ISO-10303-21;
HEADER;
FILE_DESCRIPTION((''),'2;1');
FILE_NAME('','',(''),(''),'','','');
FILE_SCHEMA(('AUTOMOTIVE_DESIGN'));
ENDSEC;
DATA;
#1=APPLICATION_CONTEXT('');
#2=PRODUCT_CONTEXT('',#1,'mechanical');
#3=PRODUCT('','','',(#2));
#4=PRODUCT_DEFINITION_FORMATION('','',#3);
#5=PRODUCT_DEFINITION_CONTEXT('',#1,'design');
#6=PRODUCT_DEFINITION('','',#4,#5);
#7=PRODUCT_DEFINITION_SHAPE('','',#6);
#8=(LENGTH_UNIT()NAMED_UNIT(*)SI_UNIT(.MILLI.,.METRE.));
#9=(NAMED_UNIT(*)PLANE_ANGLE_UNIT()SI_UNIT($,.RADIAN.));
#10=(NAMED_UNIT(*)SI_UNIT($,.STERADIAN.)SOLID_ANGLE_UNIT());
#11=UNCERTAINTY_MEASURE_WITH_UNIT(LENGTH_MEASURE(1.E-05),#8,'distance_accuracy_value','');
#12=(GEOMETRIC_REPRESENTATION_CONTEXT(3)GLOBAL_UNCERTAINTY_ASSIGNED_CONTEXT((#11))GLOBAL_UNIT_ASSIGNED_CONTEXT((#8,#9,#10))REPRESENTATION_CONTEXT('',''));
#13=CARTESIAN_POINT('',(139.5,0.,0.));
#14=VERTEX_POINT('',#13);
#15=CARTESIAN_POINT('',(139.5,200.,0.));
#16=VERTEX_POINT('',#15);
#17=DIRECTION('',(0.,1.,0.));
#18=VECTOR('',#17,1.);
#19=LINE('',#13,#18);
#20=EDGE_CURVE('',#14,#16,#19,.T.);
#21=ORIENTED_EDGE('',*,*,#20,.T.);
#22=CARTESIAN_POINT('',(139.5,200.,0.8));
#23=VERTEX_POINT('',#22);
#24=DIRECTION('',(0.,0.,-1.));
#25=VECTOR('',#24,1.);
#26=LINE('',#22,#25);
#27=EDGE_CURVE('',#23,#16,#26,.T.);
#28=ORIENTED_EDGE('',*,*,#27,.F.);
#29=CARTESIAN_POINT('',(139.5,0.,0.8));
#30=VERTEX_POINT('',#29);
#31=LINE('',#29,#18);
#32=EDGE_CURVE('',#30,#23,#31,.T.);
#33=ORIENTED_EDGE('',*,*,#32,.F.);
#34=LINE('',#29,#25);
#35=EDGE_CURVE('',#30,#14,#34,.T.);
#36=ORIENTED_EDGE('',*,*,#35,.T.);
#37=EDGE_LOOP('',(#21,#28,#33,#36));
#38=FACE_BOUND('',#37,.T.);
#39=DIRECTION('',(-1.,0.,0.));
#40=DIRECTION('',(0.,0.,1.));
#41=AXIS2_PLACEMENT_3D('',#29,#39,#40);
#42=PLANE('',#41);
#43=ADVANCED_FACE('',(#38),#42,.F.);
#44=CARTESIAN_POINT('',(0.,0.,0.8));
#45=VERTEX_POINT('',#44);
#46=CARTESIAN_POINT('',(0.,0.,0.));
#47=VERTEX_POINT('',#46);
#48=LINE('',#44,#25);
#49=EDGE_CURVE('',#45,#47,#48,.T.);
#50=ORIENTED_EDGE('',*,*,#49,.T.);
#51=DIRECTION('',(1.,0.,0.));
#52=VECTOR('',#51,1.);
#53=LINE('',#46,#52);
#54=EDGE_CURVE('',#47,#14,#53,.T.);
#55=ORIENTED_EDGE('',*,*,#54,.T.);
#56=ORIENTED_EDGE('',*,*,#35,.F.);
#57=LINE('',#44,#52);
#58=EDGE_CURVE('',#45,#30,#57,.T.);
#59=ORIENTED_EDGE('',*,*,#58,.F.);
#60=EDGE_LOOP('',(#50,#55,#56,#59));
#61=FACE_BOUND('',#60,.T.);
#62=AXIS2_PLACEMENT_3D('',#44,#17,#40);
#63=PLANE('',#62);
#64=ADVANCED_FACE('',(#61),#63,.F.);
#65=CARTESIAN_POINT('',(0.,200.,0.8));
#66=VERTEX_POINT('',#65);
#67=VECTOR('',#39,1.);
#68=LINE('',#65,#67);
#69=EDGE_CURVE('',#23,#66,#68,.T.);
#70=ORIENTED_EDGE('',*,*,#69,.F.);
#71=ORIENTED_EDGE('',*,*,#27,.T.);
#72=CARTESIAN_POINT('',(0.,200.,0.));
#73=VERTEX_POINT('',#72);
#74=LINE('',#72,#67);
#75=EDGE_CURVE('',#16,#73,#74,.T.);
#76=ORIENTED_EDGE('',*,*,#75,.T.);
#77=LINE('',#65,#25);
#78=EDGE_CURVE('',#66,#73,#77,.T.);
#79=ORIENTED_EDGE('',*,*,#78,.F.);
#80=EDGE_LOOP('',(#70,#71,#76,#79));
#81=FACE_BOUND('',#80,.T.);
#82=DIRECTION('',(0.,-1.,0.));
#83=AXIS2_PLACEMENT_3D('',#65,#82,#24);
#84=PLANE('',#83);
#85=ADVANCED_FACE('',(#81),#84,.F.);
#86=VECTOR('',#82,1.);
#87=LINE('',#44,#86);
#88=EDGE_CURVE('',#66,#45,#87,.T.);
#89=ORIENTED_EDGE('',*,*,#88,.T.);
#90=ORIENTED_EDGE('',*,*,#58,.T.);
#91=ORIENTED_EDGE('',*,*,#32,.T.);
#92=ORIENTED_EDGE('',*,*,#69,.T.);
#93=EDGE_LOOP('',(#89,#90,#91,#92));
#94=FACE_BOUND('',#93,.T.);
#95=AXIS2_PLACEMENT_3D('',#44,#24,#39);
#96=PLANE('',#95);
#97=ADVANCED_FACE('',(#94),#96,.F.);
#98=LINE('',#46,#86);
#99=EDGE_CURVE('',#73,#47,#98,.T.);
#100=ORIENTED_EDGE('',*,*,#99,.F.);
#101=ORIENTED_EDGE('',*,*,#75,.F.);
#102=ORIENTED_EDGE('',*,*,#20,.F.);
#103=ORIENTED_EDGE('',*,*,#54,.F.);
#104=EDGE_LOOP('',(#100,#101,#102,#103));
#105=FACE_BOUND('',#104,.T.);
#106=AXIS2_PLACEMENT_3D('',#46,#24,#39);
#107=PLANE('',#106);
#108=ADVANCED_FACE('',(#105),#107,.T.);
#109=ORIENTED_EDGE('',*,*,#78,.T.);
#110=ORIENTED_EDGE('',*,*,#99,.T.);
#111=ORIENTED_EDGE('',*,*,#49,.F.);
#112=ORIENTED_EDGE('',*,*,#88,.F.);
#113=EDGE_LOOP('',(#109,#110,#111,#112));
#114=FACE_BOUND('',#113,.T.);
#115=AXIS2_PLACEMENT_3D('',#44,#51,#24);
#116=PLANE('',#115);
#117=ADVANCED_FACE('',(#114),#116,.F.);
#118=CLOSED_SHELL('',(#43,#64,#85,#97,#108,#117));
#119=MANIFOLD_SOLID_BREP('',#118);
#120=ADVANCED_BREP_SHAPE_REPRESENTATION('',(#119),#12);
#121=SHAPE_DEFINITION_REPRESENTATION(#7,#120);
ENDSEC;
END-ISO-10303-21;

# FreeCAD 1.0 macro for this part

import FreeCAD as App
import Part
import Sketcher
from FreeCAD import Vector


def add_polygon(sketch, points):
    """Adds a closed chain of lines whose ends are joined by coincident constraints."""
    first, n = sketch.GeometryCount, len(points)
    for a, b in zip(points, points[1:] + points[:1]):
        sketch.addGeometry(Part.LineSegment(App.Vector(*a, 0), App.Vector(*b, 0)), False)
    for i in range(n):
        sketch.addConstraint(Sketcher.Constraint("Coincident", first + i, 2, first + (i + 1) % n, 1))

doc = App.newDocument("Part")
body = doc.addObject("PartDesign::Body", "Body")

# Sketch on XY plane
sketch1 = doc.addObject("Sketcher::SketchObject", "Sketch")
body.addObject(sketch1)
sketch1.AttachmentSupport = (doc.XY_Plane, [""])
sketch1.MapMode = "FlatFace"
add_polygon(sketch1, [(0, 200), (0, 0), (140, 0), (140, 200)])  # lines 0-3
sketch1.addConstraint([
    Sketcher.Constraint("Vertical", 0),
    Sketcher.Constraint("Horizontal", 1),
    Sketcher.Constraint("Vertical", 2),
    Sketcher.Constraint("Horizontal", 3),
    Sketcher.Constraint("Coincident", 0, 2, -1, 1),
    Sketcher.Constraint("DistanceY", 0, 2, 0, 1, 200.0),
    Sketcher.Constraint("DistanceX", 1, 1, 1, 2, 139.5),
])
pad1 = doc.addObject("PartDesign::Pad", "Pad")
body.addObject(pad1)
pad1.Profile = sketch1
pad1.Length = 0.8

doc.recompute()
